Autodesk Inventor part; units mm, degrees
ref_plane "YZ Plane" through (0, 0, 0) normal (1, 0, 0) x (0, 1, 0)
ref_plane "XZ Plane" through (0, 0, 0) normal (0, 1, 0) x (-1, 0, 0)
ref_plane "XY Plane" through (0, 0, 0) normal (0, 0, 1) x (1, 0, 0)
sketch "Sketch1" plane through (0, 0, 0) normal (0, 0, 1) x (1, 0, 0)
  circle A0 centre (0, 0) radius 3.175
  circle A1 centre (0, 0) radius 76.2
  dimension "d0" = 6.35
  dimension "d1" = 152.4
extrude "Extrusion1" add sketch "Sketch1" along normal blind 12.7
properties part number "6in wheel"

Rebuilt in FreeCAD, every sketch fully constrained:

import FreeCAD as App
import Part
import Sketcher

V = App.Vector
Q = App.Units.Quantity

doc = App.newDocument("Part")
body = doc.addObject("PartDesign::Body", "Body")

sketch1 = doc.addObject("Sketcher::SketchObject", "Sketch")
body.addObject(sketch1)
sketch1.AttachmentSupport = (doc.XY_Plane, [""])
sketch1.MapMode = "FlatFace"
sketch1.addGeometry([
    Part.Circle(V(0, 0, 0), V(0, 0, 1), 76.2),
    Part.Circle(V(0, 0, 0), V(0, 0, 1), 3.2),
], False)
sketch1.addConstraint([
    Sketcher.Constraint("Coincident", 0, 3, -1, 1),
    Sketcher.Constraint("Coincident", 1, 3, -1, 1),
    Sketcher.Constraint("Diameter", 0, Q("6 in")),
    Sketcher.Constraint("Diameter", 1, Q("0.25 in")),
])
pad1 = doc.addObject("PartDesign::Pad", "Pad")
body.addObject(pad1)
pad1.Profile = sketch1
pad1.Length = Q("0.5 in")

doc.recompute()
